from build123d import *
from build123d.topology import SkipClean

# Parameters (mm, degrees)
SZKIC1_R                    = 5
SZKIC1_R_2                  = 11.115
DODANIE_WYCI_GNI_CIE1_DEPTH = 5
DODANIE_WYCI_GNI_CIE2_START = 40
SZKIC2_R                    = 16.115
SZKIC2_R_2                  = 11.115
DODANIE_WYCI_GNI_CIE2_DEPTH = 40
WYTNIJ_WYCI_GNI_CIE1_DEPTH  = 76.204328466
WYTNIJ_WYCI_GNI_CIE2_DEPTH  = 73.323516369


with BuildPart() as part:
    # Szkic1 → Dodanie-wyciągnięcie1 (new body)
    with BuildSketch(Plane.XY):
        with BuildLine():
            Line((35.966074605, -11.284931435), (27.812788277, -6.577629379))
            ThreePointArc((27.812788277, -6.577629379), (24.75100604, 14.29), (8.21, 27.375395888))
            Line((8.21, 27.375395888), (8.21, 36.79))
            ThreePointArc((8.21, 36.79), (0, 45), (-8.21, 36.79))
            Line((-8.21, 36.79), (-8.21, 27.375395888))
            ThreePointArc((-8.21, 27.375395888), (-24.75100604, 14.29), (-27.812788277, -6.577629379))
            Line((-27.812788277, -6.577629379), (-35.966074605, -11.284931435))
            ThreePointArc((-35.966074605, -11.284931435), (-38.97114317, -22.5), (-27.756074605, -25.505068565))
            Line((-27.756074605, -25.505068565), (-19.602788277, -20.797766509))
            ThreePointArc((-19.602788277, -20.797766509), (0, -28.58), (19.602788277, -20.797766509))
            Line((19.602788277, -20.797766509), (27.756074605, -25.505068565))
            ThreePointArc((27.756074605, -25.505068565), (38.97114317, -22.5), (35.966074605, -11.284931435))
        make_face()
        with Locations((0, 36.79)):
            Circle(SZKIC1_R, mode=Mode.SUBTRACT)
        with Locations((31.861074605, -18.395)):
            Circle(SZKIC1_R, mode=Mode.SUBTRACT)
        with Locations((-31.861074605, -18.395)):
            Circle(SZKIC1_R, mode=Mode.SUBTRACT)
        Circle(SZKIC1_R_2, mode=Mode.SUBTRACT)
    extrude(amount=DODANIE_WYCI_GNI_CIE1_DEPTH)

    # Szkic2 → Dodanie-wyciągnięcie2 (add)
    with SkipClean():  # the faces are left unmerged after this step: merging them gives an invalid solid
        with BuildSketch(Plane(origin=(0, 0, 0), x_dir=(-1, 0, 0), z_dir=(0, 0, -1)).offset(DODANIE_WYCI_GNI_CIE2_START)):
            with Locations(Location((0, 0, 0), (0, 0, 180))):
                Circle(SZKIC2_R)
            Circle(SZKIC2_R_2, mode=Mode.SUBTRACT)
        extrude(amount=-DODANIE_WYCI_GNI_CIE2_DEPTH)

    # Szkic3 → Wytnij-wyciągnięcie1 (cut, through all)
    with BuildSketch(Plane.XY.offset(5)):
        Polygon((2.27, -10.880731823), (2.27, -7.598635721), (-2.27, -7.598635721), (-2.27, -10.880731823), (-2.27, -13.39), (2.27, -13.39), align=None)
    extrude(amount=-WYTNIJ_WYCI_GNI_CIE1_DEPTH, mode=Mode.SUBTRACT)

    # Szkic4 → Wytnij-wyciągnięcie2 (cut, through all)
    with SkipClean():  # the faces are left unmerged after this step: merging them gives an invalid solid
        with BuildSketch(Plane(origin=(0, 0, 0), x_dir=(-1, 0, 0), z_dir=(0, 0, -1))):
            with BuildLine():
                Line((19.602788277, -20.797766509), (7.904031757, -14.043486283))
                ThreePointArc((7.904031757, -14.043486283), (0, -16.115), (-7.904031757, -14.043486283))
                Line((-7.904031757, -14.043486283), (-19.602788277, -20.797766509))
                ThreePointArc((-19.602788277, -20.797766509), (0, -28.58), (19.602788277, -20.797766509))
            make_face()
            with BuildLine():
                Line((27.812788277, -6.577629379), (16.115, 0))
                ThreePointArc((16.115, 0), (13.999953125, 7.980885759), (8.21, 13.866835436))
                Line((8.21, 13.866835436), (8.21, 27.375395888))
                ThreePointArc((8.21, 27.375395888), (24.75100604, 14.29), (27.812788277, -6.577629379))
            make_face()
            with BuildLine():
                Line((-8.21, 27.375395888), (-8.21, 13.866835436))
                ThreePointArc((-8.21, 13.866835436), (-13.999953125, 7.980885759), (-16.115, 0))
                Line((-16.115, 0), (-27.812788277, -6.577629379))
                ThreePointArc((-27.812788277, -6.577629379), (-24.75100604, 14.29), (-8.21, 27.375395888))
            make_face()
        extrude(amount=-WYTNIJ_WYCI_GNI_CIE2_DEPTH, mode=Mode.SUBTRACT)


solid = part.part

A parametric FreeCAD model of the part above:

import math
import FreeCAD as App
import Part
import Sketcher
from FreeCAD import Vector
Q = App.Units.Quantity


def add_polygon(sketch, points):
    """Adds a closed chain of lines whose ends are joined by coincident constraints."""
    first, n = sketch.GeometryCount, len(points)
    for a, b in zip(points, points[1:] + points[:1]):
        sketch.addGeometry(Part.LineSegment(App.Vector(*a, 0), App.Vector(*b, 0)), False)
    for i in range(n):
        sketch.addConstraint(Sketcher.Constraint("Coincident", first + i, 2, first + (i + 1) % n, 1))

doc = App.newDocument("Part")
body = doc.addObject("PartDesign::Body", "Body")

# Sketch on XY plane
sketch1 = body.newObject("Sketcher::SketchObject", "Sketch")
sketch1.AttachmentSupport = (doc.getObject("XY_Plane"), [""])
sketch1.MapMode = "FlatFace"
sketch1.addGeometry([
    Part.LineSegment(Vector(36, -11, 0), Vector(28, -7, 0)),  # 0
    Part.ArcOfCircle(Part.Circle(Vector(0, 0, 0), Vector(0, 0, 1), 29), math.radians(-13), math.radians(73)),  # 1
    Part.LineSegment(Vector(8, 27, 0), Vector(8, 37, 0)),  # 2
    Part.ArcOfCircle(Part.Circle(Vector(0, 37, 0), Vector(0, 0, 1), 8), math.radians(0), math.radians(180)),  # 3
    Part.LineSegment(Vector(-8, 37, 0), Vector(-8, 27, 0)),  # 4
    Part.ArcOfCircle(Part.Circle(Vector(0, 0, 0), Vector(0, 0, 1), 29), math.radians(107), math.radians(193)),  # 5
    Part.LineSegment(Vector(-28, -7, 0), Vector(-36, -11, 0)),  # 6
    Part.ArcOfCircle(Part.Circle(Vector(-32, -18, 0), Vector(0, 0, 1), 8), math.radians(120), math.radians(300)),  # 7
    Part.LineSegment(Vector(-28, -26, 0), Vector(-20, -21, 0)),  # 8
    Part.ArcOfCircle(Part.Circle(Vector(0, 0, 0), Vector(0, 0, 1), 29), math.radians(-133), math.radians(-47)),  # 9
    Part.LineSegment(Vector(20, -21, 0), Vector(28, -26, 0)),  # 10
    Part.ArcOfCircle(Part.Circle(Vector(32, -18, 0), Vector(0, 0, 1), 8), math.radians(-120), math.radians(60)),  # 11
    Part.Circle(Vector(-32, -18, 0), Vector(0, 0, 1), 5),  # 12
    Part.Circle(Vector(0, 0, 0), Vector(0, 0, 1), 11),  # 13
    Part.Circle(Vector(32, -18, 0), Vector(0, 0, 1), 5),  # 14
    Part.Circle(Vector(0, 37, 0), Vector(0, 0, 1), 5),  # 15
], False)
sketch1.addConstraint([
    Sketcher.Constraint("Coincident", 0, 2, 1, 1),
    Sketcher.Constraint("Coincident", 1, 2, 2, 1),
    Sketcher.Constraint("Tangent", 2, 2, 3, 1),
    Sketcher.Constraint("Tangent", 3, 2, 4, 1),
    Sketcher.Constraint("Coincident", 4, 2, 5, 1),
    Sketcher.Constraint("Coincident", 5, 2, 6, 1),
    Sketcher.Constraint("Tangent", 6, 2, 7, 1),
    Sketcher.Constraint("Tangent", 7, 2, 8, 1),
    Sketcher.Constraint("Coincident", 8, 2, 9, 1),
    Sketcher.Constraint("Coincident", 9, 2, 10, 1),
    Sketcher.Constraint("Tangent", 10, 2, 11, 1),
    Sketcher.Constraint("Tangent", 11, 2, 0, 1),
    Sketcher.Constraint("Vertical", 2),
    Sketcher.Constraint("Vertical", 4),
    Sketcher.Constraint("Coincident", 1, 3, -1, 1),
    Sketcher.Constraint("Coincident", 5, 3, -1, 1),
    Sketcher.Constraint("Coincident", 9, 3, -1, 1),
    Sketcher.Constraint("Coincident", 13, 3, -1, 1),
    Sketcher.Constraint("Coincident", 12, 3, 7, 3),
    Sketcher.Constraint("Coincident", 14, 3, 11, 3),
    Sketcher.Constraint("Coincident", 15, 3, 3, 3),
    Sketcher.Constraint("Equal", 1, 5),
    Sketcher.Constraint("Equal", 3, 7),
    Sketcher.Constraint("Equal", 5, 9),
    Sketcher.Constraint("Equal", 7, 11),
    Sketcher.Constraint("Equal", 12, 14),
    Sketcher.Constraint("Equal", 14, 15),
    Sketcher.Constraint("Symmetric", 7, 3, 11, 3, -2),
    Sketcher.Constraint("PointOnObject", 3, 3, -2),
    Sketcher.Constraint("Parallel", 6, 8),
    Sketcher.Constraint("Parallel", 0, 10),
    Sketcher.Constraint("Horizontal", 0, 2, 5, 2),
    Sketcher.Constraint("Equal", 6, 8),
    Sketcher.Constraint("Diameter", 12, 10.0),
    Sketcher.Constraint("Diameter", 13, 22.23),
    Sketcher.Constraint("Angle", 0, Q("150 deg")),
    Sketcher.Constraint("Radius", 1, 28.58),
    Sketcher.Constraint("Radius", 3, 8.21),
    Sketcher.Constraint("DistanceY", -1, 1, 3, 3, 36.79),
    Sketcher.Constraint("DistanceY", 7, 3, -1, 1, 18.395),
])
pad1 = body.newObject("PartDesign::Pad", "Pad")
pad1.Profile = sketch1
pad1.Length = 5

# Sketch on XY plane
sketch2 = body.newObject("Sketcher::SketchObject", "Sketch001")
sketch2.AttachmentSupport = (doc.getObject("XY_Plane"), [""])
sketch2.MapMode = "FlatFace"
sketch2.AttachmentOffset = App.Placement(Vector(0, 0, -40), App.Rotation())
sketch2.addGeometry([
    Part.Circle(Vector(0, 0, 0), Vector(0, 0, 1), 16),
    Part.Circle(Vector(0, 0, 0), Vector(0, 0, 1), 11),
], False)
sketch2.addConstraint([
    Sketcher.Constraint("Coincident", 0, 3, -1, 1),
    Sketcher.Constraint("Coincident", 1, 3, -1, 1),
    Sketcher.Constraint("Diameter", 0, 32.23),
    Sketcher.Constraint("Diameter", 1, 22.23),
])
pad2 = body.newObject("PartDesign::Pad", "Pad001")
pad2.Profile = sketch2
pad2.Length = 40

# Sketch on XY plane
sketch3 = body.newObject("Sketcher::SketchObject", "Sketch002")
sketch3.AttachmentSupport = (doc.getObject("XY_Plane"), [""])
sketch3.MapMode = "FlatFace"
sketch3.AttachmentOffset = App.Placement(Vector(0, 0, 5), App.Rotation())
add_polygon(sketch3, [(2.3, -7.6), (-2.3, -7.6), (-2.3, -13.4), (2.3, -13.4)])  # lines 0-3
sketch3.addConstraint([
    Sketcher.Constraint("Horizontal", 0),
    Sketcher.Constraint("Vertical", 1),
    Sketcher.Constraint("Horizontal", 2),
    Sketcher.Constraint("Vertical", 3),
    Sketcher.Constraint("DistanceX", 0, 2, 0, 1, 4.54),
    Sketcher.Constraint("DistanceX", 0, 2, -1, 1, 2.27),
    Sketcher.Constraint("DistanceY", 1, 2, -1, 1, 13.39),
    Sketcher.Constraint("DistanceY", 1, 2, 1, 1, 5.791364),
])
pocket1 = body.newObject("PartDesign::Pocket", "Pocket")
pocket1.Profile = sketch3
pocket1.Type = "ThroughAll"

# Sketch on XY plane
sketch4 = body.newObject("Sketcher::SketchObject", "Sketch003")
sketch4.AttachmentSupport = (doc.getObject("XY_Plane"), [""])
sketch4.MapMode = "FlatFace"
sketch4.addGeometry([
    Part.LineSegment(Vector(-20, -21, 0), Vector(-8, -14, 0)),  # 0
    Part.ArcOfCircle(Part.Circle(Vector(0, 0, 0), Vector(0, 0, 1), 16), math.radians(-119), math.radians(-61)),  # 1
    Part.LineSegment(Vector(8, -14, 0), Vector(20, -21, 0)),  # 2
    Part.ArcOfCircle(Part.Circle(Vector(0, 0, 0), Vector(0, 0, 1), 29), math.radians(-133), math.radians(-47)),  # 3
    Part.LineSegment(Vector(-16, 0, 0), Vector(-28, -7, 0)),  # 4
    Part.ArcOfCircle(Part.Circle(Vector(0, 0, 0), Vector(0, 0, 1), 29), math.radians(107), math.radians(193)),  # 5
    Part.LineSegment(Vector(-8, 27, 0), Vector(-8, 14, 0)),  # 6
    Part.ArcOfCircle(Part.Circle(Vector(0, 0, 0), Vector(0, 0, 1), 16), math.radians(121), math.radians(180)),  # 7
    Part.LineSegment(Vector(8, 14, 0), Vector(8, 27, 0)),  # 8
    Part.ArcOfCircle(Part.Circle(Vector(0, 0, 0), Vector(0, 0, 1), 29), math.radians(-13), math.radians(73)),  # 9
    Part.LineSegment(Vector(28, -7, 0), Vector(16, 0, 0)),  # 10
    Part.ArcOfCircle(Part.Circle(Vector(0, 0, 0), Vector(0, 0, 1), 16), math.radians(0), math.radians(59)),  # 11
], False)
sketch4.addConstraint([
    Sketcher.Constraint("Coincident", 0, 2, 1, 1),
    Sketcher.Constraint("Coincident", 1, 2, 2, 1),
    Sketcher.Constraint("Coincident", 2, 2, 3, 2),
    Sketcher.Constraint("Coincident", 3, 1, 0, 1),
    Sketcher.Constraint("Coincident", 4, 2, 5, 2),
    Sketcher.Constraint("Coincident", 5, 1, 6, 1),
    Sketcher.Constraint("Coincident", 6, 2, 7, 1),
    Sketcher.Constraint("Coincident", 7, 2, 4, 1),
    Sketcher.Constraint("Coincident", 8, 2, 9, 2),
    Sketcher.Constraint("Coincident", 9, 1, 10, 1),
    Sketcher.Constraint("Coincident", 10, 2, 11, 1),
    Sketcher.Constraint("Coincident", 11, 2, 8, 1),
    Sketcher.Constraint("Vertical", 6),
    Sketcher.Constraint("Vertical", 8),
    Sketcher.Constraint("Coincident", 1, 3, -1, 1),
    Sketcher.Constraint("Coincident", 3, 3, -1, 1),
    Sketcher.Constraint("Coincident", 5, 3, -1, 1),
    Sketcher.Constraint("Coincident", 7, 3, -1, 1),
    Sketcher.Constraint("Coincident", 9, 3, -1, 1),
    Sketcher.Constraint("Coincident", 11, 3, -1, 1),
    Sketcher.Constraint("Equal", 3, 5),
    Sketcher.Constraint("Equal", 1, 7),
    Sketcher.Constraint("Equal", 5, 9),
    Sketcher.Constraint("Equal", 7, 11),
    Sketcher.Constraint("PointOnObject", 7, 2, -1),
    Sketcher.Constraint("PointOnObject", 10, 2, -1),
    Sketcher.Constraint("Horizontal", 0, 2, 1, 2),
    Sketcher.Constraint("Horizontal", 2, 2, 3, 1),
    Sketcher.Constraint("Horizontal", 5, 1, 8, 2),
    Sketcher.Constraint("Horizontal", 4, 2, 9, 1),
    Sketcher.Constraint("Angle", 0, Q("30 deg")),
    Sketcher.Constraint("Radius", 3, 28.58),
    Sketcher.Constraint("Radius", 1, 16.115),
    Sketcher.Constraint("DistanceX", 5, 1, -1, 1, 8.21),
    Sketcher.Constraint("DistanceX", 4, 2, 3, 1, 8.21),
    Sketcher.Constraint("Distance", 0, 13.50856),
])
pocket2 = body.newObject("PartDesign::Pocket", "Pocket001")
pocket2.Profile = sketch4
pocket2.Type = "ThroughAll"
pocket2.Reversed = True

doc.recompute()
